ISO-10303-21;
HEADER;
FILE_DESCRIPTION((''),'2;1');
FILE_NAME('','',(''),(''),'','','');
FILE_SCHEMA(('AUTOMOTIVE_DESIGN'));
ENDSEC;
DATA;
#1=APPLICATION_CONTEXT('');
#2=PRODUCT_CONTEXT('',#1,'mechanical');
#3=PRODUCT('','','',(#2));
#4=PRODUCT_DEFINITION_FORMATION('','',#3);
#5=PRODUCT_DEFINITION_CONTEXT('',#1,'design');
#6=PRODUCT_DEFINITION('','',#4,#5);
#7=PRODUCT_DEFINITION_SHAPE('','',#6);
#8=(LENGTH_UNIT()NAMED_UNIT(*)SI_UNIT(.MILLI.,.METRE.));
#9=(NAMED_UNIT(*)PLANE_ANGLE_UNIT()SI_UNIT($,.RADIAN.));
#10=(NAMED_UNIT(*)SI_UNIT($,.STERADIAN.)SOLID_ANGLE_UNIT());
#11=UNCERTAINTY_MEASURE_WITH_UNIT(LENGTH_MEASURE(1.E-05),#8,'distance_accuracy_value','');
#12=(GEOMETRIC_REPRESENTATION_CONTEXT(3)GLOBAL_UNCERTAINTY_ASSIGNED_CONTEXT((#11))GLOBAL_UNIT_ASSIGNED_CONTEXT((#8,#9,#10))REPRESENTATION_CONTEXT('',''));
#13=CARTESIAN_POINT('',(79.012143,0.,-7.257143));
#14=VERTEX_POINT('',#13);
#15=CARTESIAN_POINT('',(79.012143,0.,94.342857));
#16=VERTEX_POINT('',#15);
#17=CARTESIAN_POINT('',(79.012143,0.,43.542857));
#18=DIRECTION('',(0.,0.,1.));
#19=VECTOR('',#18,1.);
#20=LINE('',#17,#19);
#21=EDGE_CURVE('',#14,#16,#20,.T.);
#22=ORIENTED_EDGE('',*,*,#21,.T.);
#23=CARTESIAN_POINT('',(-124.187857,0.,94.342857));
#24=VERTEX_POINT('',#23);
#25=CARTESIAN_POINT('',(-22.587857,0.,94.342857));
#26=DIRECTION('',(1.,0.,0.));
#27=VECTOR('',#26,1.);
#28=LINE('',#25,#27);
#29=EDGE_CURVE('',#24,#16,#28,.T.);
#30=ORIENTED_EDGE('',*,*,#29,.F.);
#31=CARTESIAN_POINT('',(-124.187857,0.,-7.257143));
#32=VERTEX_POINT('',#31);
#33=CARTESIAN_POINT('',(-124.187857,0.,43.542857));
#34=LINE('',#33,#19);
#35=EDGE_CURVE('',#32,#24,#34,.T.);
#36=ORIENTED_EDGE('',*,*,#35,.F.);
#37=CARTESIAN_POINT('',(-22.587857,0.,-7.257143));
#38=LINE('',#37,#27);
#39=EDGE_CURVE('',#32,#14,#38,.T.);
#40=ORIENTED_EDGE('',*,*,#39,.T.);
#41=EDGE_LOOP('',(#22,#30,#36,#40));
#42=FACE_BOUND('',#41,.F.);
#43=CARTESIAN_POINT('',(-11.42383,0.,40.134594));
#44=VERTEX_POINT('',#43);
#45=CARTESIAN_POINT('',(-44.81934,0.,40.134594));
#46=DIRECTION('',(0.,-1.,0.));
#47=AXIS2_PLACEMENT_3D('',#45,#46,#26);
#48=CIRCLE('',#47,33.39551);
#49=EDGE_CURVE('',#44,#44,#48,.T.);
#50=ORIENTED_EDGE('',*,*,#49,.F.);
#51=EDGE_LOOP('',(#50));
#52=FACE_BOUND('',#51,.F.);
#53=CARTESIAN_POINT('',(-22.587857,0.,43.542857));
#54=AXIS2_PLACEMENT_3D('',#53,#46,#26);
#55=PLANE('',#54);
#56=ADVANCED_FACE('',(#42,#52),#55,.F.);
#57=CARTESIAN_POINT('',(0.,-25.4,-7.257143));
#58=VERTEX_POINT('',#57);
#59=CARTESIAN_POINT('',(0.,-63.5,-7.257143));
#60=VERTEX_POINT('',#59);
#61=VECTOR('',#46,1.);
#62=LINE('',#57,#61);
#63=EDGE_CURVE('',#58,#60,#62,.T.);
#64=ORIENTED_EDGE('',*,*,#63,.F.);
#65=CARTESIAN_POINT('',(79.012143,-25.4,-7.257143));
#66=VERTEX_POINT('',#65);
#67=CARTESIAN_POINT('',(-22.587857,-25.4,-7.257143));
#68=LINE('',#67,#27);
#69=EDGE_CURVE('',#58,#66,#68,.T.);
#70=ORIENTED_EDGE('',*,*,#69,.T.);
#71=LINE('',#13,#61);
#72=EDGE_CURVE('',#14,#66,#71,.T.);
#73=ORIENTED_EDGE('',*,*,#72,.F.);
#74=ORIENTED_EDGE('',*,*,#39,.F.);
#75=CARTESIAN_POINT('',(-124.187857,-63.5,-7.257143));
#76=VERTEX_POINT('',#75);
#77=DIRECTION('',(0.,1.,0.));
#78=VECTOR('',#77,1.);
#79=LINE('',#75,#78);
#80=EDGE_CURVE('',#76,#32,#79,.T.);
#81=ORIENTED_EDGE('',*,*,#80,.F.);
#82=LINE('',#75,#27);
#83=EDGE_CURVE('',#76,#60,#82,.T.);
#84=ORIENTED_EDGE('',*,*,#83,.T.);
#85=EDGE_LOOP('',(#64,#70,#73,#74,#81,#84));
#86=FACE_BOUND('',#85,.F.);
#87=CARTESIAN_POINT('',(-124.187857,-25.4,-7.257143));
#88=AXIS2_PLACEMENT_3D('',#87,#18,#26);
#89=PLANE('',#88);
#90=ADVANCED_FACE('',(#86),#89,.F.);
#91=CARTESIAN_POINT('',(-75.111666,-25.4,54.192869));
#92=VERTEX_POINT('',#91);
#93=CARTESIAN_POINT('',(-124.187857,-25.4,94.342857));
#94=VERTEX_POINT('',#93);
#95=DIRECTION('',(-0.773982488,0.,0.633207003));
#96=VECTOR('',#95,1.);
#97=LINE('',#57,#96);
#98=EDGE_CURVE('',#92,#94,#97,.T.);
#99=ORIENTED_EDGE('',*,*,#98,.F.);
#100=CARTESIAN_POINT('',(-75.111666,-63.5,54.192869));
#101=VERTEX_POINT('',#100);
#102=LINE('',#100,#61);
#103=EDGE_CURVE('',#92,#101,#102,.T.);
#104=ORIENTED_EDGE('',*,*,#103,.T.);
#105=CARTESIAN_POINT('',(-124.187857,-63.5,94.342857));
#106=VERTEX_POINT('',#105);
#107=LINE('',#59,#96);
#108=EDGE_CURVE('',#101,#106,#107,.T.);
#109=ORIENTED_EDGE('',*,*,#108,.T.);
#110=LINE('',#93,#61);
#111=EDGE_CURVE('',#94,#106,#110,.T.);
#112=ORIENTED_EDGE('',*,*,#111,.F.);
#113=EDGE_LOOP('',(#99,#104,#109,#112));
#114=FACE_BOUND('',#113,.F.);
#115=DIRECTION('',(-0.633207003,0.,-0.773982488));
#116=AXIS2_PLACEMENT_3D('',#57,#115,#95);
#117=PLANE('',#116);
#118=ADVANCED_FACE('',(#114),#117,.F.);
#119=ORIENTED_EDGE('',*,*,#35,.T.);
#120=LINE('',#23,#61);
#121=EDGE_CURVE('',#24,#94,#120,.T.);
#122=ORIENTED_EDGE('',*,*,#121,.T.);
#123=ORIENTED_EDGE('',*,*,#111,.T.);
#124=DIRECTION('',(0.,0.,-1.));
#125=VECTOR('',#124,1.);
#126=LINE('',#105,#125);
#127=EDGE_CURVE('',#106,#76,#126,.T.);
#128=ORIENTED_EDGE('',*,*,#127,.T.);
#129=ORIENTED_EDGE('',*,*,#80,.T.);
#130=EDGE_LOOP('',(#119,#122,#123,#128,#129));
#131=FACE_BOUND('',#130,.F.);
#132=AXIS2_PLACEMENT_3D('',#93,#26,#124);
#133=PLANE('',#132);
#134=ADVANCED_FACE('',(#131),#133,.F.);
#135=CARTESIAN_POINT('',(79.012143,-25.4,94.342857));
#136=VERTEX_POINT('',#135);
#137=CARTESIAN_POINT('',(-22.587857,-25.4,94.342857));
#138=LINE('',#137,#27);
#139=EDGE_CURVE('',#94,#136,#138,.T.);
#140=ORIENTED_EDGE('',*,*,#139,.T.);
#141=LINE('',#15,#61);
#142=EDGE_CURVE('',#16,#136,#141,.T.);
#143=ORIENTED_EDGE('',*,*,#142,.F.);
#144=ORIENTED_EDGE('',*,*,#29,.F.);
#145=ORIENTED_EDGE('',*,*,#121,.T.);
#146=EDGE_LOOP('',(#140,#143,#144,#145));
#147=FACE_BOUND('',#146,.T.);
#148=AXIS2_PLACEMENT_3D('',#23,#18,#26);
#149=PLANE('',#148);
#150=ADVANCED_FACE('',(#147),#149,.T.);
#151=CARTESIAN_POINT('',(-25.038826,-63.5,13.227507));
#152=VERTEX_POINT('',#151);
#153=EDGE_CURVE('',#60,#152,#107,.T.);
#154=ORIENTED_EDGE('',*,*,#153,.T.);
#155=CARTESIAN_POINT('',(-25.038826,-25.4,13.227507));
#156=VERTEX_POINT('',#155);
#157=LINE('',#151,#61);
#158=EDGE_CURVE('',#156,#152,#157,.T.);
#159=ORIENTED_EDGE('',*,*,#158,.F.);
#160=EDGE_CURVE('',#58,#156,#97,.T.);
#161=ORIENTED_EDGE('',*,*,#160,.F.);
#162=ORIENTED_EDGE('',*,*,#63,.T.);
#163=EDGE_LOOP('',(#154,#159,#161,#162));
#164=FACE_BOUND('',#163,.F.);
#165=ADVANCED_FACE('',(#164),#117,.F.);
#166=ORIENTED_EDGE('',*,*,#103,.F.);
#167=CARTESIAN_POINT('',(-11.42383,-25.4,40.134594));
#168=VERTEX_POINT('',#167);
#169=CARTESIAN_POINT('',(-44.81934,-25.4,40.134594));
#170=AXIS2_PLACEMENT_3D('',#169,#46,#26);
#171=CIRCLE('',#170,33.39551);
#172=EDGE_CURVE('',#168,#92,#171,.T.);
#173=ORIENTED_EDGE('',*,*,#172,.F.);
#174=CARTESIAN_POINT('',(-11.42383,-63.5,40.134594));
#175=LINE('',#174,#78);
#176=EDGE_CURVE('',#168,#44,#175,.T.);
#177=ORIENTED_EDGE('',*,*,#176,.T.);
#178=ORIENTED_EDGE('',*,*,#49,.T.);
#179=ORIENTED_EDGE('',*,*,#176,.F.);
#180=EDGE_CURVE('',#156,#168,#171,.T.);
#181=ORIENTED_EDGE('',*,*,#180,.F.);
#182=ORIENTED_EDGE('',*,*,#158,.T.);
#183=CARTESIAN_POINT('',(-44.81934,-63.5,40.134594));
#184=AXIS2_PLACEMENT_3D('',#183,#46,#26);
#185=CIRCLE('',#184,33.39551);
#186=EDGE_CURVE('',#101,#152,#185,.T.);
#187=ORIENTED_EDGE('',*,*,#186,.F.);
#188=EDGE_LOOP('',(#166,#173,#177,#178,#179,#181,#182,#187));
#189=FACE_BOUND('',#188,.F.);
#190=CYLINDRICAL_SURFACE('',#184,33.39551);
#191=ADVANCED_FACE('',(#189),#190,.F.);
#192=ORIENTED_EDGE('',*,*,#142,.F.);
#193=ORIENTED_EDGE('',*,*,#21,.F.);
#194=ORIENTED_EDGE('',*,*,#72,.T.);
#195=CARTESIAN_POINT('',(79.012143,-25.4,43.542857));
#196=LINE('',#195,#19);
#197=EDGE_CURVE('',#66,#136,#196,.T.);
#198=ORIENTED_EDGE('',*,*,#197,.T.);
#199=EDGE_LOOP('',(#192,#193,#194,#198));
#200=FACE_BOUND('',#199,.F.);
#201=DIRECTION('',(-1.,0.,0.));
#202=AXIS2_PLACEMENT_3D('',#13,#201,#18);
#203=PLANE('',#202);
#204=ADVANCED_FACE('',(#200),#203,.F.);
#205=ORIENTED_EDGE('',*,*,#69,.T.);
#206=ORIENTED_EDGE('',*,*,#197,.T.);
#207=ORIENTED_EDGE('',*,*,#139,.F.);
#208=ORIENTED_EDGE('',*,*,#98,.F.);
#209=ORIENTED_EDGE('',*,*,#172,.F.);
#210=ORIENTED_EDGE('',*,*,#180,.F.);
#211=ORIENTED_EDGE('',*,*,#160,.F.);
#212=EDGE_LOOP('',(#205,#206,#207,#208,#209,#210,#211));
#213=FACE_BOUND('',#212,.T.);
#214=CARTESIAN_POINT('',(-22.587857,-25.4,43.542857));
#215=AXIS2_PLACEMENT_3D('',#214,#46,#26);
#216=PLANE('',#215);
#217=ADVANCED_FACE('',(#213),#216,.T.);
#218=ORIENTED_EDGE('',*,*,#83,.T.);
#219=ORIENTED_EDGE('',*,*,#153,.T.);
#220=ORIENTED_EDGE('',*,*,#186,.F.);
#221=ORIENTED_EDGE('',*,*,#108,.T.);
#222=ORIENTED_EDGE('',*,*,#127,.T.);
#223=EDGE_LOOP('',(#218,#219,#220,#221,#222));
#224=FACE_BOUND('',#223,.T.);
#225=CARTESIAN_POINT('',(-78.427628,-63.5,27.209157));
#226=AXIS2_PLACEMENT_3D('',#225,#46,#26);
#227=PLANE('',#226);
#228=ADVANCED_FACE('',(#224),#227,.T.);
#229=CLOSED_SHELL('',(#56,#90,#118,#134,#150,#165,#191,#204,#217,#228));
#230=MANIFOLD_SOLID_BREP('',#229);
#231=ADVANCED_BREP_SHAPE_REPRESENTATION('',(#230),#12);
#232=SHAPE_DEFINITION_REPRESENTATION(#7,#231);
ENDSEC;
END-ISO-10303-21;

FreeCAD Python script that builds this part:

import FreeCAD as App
import Part
import Sketcher
Q = App.Units.Quantity

doc = App.newDocument("Part")
params = doc.addObject("Spreadsheet::Sheet", "Params")
for row, (alias, value) in enumerate([
    ("sketch1_width", "8 in"),
    ("sketch1_height", "4 in"),
    ("pad1_length", "1 in"),
    ("sketch2_height", "4 in"),
    ("pad2_length", "1.5 in"),
    ("pocket1_length", "5.3 in"),
], start=1):
    params.set(f"A{row}", alias)
    params.set(f"B{row}", "=" + value)
    params.setAlias(f"B{row}", alias)

body = doc.addObject("PartDesign::Body", "Body")

sketch1 = body.newObject("Sketcher::SketchObject", "Sketch")
sketch1.AttachmentSupport = (doc.getObject("XZ_Plane"), [""])
sketch1.MapMode = "FlatFace"
sketch1.addGeometry(Part.LineSegment(App.Vector(-124, 94, 0), App.Vector(-124, -7, 0)), False)
sketch1.addGeometry(Part.LineSegment(App.Vector(-124, -7, 0), App.Vector(79, -7, 0)), False)
sketch1.addGeometry(Part.LineSegment(App.Vector(79, -7, 0), App.Vector(79, 94, 0)), False)
sketch1.addGeometry(Part.LineSegment(App.Vector(79, 94, 0), App.Vector(-124, 94, 0)), False)
sketch1.addConstraint(Sketcher.Constraint("Coincident", 0, 2, 1, 1))
sketch1.addConstraint(Sketcher.Constraint("Coincident", 1, 2, 2, 1))
sketch1.addConstraint(Sketcher.Constraint("Coincident", 2, 2, 3, 1))
sketch1.addConstraint(Sketcher.Constraint("Coincident", 3, 2, 0, 1))
sketch1.addConstraint(Sketcher.Constraint("Vertical", 0))
sketch1.addConstraint(Sketcher.Constraint("Horizontal", 1))
sketch1.addConstraint(Sketcher.Constraint("Vertical", 2))
sketch1.addConstraint(Sketcher.Constraint("Horizontal", 3))
sketch1.addConstraint(Sketcher.Constraint("DistanceX", 1, 1, 1, 2, Q("8 in")))
sketch1.addConstraint(Sketcher.Constraint("DistanceY", 0, 2, 0, 1, Q("4 in")))
sketch1.addConstraint(Sketcher.Constraint("DistanceX", 0, 2, -1, 1, 124.187857))
sketch1.addConstraint(Sketcher.Constraint("DistanceY", 0, 2, -1, 1, 7.257143))
sketch1.setExpression("Constraints[8]", "Params.sketch1_width")
sketch1.setExpression("Constraints[9]", "Params.sketch1_height")
pad1 = body.newObject("PartDesign::Pad", "Pad")
pad1.Profile = sketch1
pad1.setExpression("Length", "Params.pad1_length")

sketch2 = body.newObject("Sketcher::SketchObject", "Sketch001")
sketch2.AttachmentSupport = (doc.getObject("XZ_Plane"), [""])
sketch2.MapMode = "FlatFace"
sketch2.AttachmentOffset = App.Placement(App.Vector(0, 0, 1 * 25.4), App.Rotation())
sketch2.addGeometry(Part.LineSegment(App.Vector(0, -7, 0), App.Vector(-124, 94, 0)), False)
sketch2.addGeometry(Part.LineSegment(App.Vector(-124, 94, 0), App.Vector(-124, -7, 0)), False)
sketch2.addGeometry(Part.LineSegment(App.Vector(-124, -7, 0), App.Vector(0, -7, 0)), False)
sketch2.addConstraint(Sketcher.Constraint("Coincident", 0, 2, 1, 1))
sketch2.addConstraint(Sketcher.Constraint("Coincident", 1, 2, 2, 1))
sketch2.addConstraint(Sketcher.Constraint("Coincident", 2, 2, 0, 1))
sketch2.addConstraint(Sketcher.Constraint("Vertical", 1))
sketch2.addConstraint(Sketcher.Constraint("Horizontal", 2))
sketch2.addConstraint(Sketcher.Constraint("PointOnObject", 2, 2, -2))
sketch2.addConstraint(Sketcher.Constraint("DistanceY", 1, 2, 1, 1, Q("4 in")))
sketch2.addConstraint(Sketcher.Constraint("Distance", 0, 160.453058))
sketch2.addConstraint(Sketcher.Constraint("DistanceY", -1, 1, 0, 2, 94.342857))
sketch2.setExpression("Constraints[6]", "Params.sketch2_height")
pad2 = body.newObject("PartDesign::Pad", "Pad001")
pad2.Profile = sketch2
pad2.setExpression("Length", "Params.pad2_length")

sketch3 = body.newObject("Sketcher::SketchObject", "Sketch002")
sketch3.AttachmentSupport = (doc.getObject("XZ_Plane"), [""])
sketch3.MapMode = "FlatFace"
sketch3.AttachmentOffset = App.Placement(App.Vector(0, 0, 2.5 * 25.4), App.Rotation())
sketch3.addGeometry(Part.Circle(App.Vector(-45, 40, 0), App.Vector(0, 0, 1), 33), False)
sketch3.addConstraint(Sketcher.Constraint("Diameter", 0, 66.79102))
sketch3.addConstraint(Sketcher.Constraint("DistanceX", 0, 3, -1, 1, 44.81934))
sketch3.addConstraint(Sketcher.Constraint("DistanceY", -1, 1, 0, 3, 40.134594))
pocket1 = body.newObject("PartDesign::Pocket", "Pocket")
pocket1.Profile = sketch3
pocket1.setExpression("Length", "Params.pocket1_length")

doc.recompute()
